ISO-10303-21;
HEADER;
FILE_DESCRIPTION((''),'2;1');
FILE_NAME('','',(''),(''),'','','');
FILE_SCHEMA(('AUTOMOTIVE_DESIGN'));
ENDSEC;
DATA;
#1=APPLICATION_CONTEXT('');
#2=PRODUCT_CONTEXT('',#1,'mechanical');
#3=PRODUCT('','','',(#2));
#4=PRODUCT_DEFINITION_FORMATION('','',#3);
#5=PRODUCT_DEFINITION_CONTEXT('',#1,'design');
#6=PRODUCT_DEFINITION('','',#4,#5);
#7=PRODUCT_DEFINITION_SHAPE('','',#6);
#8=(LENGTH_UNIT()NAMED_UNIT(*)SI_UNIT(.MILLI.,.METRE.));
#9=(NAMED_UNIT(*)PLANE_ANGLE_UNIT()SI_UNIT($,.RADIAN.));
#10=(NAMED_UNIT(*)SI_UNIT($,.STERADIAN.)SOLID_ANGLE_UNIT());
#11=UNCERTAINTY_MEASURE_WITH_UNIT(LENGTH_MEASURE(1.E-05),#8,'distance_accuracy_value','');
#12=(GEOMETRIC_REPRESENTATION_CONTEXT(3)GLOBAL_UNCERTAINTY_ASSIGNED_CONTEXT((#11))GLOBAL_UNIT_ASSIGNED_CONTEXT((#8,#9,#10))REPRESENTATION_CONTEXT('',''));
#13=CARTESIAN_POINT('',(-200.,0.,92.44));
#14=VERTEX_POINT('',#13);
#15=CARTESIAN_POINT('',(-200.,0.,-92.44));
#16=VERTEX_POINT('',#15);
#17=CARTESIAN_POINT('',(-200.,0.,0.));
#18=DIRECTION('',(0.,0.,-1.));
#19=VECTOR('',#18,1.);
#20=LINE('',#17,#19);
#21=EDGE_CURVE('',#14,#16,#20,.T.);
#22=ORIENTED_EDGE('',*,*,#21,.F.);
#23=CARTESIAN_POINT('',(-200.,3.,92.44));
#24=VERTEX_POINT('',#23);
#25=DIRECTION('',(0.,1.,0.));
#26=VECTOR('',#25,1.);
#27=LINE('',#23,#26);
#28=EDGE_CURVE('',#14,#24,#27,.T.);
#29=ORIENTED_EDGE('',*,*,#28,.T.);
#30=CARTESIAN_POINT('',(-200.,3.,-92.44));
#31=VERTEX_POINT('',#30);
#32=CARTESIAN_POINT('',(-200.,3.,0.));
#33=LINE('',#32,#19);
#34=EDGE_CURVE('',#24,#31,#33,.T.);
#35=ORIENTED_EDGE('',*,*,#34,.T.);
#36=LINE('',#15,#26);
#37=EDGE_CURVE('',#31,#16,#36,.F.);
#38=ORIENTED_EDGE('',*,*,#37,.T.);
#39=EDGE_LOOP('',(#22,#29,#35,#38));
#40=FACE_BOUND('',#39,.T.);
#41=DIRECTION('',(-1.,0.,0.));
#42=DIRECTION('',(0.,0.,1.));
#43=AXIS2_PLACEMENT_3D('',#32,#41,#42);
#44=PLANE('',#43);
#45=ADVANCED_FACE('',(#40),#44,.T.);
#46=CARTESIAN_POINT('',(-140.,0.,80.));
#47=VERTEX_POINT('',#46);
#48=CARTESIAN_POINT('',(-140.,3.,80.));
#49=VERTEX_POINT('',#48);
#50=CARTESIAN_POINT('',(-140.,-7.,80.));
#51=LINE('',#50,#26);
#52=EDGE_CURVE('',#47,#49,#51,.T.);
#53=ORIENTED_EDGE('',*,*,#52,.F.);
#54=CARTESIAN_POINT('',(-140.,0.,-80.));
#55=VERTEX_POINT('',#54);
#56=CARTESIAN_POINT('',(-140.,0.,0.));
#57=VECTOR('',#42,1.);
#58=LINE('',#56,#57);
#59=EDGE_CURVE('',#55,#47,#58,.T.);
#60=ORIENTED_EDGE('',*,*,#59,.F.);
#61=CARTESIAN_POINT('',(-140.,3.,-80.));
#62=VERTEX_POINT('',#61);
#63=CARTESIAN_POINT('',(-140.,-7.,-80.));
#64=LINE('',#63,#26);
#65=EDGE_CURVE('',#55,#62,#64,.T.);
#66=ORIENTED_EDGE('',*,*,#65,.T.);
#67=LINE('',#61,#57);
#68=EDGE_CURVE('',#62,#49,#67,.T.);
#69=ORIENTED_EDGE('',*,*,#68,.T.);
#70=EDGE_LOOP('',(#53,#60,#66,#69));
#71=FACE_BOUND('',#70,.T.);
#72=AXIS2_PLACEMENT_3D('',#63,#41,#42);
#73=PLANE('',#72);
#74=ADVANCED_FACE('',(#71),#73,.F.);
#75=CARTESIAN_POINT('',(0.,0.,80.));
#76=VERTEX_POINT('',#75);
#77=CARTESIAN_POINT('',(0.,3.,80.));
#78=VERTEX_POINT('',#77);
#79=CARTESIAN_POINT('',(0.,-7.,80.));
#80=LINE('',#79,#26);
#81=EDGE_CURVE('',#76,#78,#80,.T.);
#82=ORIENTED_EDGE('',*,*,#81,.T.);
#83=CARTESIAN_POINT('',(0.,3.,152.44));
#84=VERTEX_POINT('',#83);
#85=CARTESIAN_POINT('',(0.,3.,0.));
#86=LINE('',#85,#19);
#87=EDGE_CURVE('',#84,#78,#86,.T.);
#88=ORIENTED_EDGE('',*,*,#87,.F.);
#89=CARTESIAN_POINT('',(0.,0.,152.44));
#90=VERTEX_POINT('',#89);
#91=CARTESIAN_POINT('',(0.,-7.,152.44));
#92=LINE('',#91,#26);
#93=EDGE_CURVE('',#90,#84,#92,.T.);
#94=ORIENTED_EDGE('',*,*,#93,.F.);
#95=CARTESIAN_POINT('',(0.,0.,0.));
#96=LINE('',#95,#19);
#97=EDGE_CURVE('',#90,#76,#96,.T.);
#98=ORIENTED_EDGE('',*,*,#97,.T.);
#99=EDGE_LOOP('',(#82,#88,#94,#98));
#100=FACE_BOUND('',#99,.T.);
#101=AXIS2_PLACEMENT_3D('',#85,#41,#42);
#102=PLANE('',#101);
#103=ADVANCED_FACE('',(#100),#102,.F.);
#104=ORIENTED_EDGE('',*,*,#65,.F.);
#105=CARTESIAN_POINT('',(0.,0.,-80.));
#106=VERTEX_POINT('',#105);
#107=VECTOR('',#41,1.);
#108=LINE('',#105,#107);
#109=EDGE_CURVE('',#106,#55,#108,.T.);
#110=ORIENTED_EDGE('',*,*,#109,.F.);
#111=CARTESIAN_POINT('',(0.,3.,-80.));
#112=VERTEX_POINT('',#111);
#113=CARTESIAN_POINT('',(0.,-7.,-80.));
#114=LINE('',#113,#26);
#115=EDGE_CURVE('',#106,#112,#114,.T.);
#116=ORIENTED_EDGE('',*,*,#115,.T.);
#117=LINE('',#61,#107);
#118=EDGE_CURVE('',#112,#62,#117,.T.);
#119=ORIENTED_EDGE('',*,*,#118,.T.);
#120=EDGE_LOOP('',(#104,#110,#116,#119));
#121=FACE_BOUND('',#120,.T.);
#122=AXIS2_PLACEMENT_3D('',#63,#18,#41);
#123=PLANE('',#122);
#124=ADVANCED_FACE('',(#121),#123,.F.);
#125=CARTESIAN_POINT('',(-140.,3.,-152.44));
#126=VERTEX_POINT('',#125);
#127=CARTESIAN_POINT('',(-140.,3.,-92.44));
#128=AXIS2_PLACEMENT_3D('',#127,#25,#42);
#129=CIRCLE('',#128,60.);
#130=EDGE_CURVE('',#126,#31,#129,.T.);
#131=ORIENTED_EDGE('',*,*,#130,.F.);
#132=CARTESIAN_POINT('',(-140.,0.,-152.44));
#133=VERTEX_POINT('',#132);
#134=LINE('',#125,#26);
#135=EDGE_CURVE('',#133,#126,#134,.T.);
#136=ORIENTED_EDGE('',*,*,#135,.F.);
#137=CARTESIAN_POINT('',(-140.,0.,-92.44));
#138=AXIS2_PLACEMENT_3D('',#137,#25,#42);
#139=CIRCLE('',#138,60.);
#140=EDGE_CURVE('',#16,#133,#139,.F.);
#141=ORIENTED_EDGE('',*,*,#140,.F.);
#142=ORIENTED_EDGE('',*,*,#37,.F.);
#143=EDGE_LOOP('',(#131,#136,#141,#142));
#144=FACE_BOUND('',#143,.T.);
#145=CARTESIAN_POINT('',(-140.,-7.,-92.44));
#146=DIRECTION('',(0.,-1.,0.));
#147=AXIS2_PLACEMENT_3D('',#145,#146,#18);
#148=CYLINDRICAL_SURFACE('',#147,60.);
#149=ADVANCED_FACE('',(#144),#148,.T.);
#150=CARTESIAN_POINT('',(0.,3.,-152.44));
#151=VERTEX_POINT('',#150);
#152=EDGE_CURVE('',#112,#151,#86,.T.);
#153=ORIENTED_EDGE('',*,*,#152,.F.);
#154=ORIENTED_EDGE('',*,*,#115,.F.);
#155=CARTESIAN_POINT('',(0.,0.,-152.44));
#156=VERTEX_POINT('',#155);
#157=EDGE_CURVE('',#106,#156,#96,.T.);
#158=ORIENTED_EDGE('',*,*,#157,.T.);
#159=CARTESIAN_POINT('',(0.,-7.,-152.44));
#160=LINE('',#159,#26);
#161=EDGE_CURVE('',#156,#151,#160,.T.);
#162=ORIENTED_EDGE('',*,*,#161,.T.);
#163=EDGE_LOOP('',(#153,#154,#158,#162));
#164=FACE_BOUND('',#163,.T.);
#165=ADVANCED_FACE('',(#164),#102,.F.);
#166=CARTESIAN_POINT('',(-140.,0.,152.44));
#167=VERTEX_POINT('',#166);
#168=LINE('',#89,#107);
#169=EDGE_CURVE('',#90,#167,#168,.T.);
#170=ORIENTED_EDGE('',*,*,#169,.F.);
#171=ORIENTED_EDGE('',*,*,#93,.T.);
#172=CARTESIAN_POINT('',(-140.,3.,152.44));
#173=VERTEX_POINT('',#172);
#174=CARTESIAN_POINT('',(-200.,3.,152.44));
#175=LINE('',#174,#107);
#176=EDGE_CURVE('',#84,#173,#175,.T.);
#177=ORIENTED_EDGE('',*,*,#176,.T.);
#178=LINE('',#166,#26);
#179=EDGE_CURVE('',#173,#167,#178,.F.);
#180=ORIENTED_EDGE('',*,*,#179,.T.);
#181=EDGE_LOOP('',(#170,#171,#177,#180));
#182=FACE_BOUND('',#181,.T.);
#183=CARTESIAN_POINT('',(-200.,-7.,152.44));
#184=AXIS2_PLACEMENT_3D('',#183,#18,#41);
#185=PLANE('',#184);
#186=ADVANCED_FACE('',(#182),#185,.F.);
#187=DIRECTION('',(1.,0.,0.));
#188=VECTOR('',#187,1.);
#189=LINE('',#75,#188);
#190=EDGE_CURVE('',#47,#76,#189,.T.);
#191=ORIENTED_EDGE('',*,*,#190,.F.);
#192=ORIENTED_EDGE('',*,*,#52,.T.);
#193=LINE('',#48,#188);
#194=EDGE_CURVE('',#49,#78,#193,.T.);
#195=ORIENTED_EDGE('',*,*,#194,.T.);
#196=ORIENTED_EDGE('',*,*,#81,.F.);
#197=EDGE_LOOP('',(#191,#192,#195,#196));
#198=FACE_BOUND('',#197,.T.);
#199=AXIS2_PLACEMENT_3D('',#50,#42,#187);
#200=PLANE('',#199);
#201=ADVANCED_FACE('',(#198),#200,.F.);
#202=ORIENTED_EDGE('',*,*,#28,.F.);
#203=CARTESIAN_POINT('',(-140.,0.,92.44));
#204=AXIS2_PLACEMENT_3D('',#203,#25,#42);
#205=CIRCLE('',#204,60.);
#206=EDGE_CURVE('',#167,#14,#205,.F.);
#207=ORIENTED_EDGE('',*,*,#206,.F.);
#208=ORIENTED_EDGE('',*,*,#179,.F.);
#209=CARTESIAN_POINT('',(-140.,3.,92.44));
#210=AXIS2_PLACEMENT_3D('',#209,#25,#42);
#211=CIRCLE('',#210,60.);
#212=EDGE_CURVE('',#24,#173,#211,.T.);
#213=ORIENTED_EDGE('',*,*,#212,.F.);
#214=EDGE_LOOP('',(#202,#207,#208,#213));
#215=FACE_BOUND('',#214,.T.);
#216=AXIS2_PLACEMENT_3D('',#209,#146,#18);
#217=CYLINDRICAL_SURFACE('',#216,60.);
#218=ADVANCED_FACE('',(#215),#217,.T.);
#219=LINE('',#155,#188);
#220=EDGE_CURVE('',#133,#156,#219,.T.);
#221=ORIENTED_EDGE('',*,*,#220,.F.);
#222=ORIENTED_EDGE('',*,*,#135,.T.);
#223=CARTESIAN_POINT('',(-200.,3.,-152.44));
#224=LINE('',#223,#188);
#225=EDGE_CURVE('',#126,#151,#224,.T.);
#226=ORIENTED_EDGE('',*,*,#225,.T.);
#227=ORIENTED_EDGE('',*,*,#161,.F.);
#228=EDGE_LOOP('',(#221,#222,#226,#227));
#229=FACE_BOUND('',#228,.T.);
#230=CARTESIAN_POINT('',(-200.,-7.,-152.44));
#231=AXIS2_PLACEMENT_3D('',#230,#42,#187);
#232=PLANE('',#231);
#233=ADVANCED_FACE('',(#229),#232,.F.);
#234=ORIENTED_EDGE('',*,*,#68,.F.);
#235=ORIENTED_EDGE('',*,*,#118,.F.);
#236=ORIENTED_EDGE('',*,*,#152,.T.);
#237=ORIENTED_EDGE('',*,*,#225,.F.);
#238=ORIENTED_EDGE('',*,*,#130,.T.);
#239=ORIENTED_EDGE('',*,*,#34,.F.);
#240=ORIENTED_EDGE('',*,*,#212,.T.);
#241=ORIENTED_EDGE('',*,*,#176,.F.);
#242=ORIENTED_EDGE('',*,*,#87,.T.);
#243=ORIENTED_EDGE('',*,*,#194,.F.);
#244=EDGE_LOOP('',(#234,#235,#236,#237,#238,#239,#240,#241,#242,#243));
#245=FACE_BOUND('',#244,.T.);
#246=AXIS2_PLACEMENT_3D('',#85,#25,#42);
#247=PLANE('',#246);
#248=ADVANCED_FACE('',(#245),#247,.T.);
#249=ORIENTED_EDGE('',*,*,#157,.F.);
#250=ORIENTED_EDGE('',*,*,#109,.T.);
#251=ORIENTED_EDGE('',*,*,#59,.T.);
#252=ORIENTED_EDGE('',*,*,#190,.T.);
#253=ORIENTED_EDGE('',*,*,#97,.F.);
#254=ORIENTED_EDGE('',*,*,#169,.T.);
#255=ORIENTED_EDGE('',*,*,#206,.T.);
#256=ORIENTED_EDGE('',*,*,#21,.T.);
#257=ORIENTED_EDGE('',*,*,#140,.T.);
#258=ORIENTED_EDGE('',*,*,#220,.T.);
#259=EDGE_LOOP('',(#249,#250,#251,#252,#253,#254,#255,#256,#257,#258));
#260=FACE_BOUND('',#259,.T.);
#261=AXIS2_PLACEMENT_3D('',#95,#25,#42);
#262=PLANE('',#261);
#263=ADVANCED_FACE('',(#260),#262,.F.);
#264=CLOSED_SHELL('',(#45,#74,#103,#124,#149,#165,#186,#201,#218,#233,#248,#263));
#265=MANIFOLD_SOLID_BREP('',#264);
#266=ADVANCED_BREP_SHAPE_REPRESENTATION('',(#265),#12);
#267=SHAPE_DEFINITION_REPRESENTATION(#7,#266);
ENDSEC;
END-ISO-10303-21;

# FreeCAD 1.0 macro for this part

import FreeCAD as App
import Part
import Sketcher
from FreeCAD import Vector


def edges_at(feature, points):
    """Names of the edges that pass closest to the given points."""
    edges = feature.Shape.Edges
    near = lambda p: min(range(len(edges)), key=lambda i: edges[i].distToShape(Part.Vertex(*p))[0])
    return sorted({f"Edge{near(p) + 1}" for p in points})


def add_polygon(sketch, points):
    """Adds a closed chain of lines whose ends are joined by coincident constraints."""
    first, n = sketch.GeometryCount, len(points)
    for a, b in zip(points, points[1:] + points[:1]):
        sketch.addGeometry(Part.LineSegment(App.Vector(*a, 0), App.Vector(*b, 0)), False)
    for i in range(n):
        sketch.addConstraint(Sketcher.Constraint("Coincident", first + i, 2, first + (i + 1) % n, 1))

doc = App.newDocument("Part")
body = doc.addObject("PartDesign::Body", "Body")

# Sketch on XZ plane
sketch1 = body.newObject("Sketcher::SketchObject", "Sketch")
sketch1.AttachmentSupport = (doc.getObject("XZ_Plane"), [""])
sketch1.MapMode = "FlatFace"
add_polygon(sketch1, [(0, -155), (-200, -155), (-200, 155), (0, 155)])  # lines 0-3
sketch1.addConstraint(Sketcher.Constraint("Horizontal", 0))
sketch1.addConstraint(Sketcher.Constraint("Vertical", 1))
sketch1.addConstraint(Sketcher.Constraint("Horizontal", 2))
sketch1.addConstraint(Sketcher.Constraint("Vertical", 3))
sketch1.addConstraint(Sketcher.Constraint("Symmetric", 2, 2, 3, 2, -1, 1))
sketch1.addConstraint(Sketcher.Constraint("DistanceX", 0, 2, 0, 1, 200.0))
sketch1.addConstraint(Sketcher.Constraint("DistanceY", 1, 1, 1, 2, 310.0))
pad1 = body.newObject("PartDesign::Pad", "Pad")
pad1.Profile = sketch1
pad1.Length = 3
pad1.Reversed = True

# Sketch on XZ plane
sketch2 = body.newObject("Sketcher::SketchObject", "Sketch001")
sketch2.AttachmentSupport = (doc.getObject("XZ_Plane"), [""])
sketch2.MapMode = "FlatFace"
sketch2.AttachmentOffset = App.Placement(Vector(0, 0, -3), App.Rotation())
add_polygon(sketch2, [(-200, -155), (-200, -152.44), (0, -152.44), (0, -155)])  # lines 0-3
add_polygon(sketch2, [(-200, 152.44), (-200, 155), (0, 155), (0, 152.44)])  # lines 4-7
sketch2.addConstraint(Sketcher.Constraint("Vertical", 0))
sketch2.addConstraint(Sketcher.Constraint("Horizontal", 1))
sketch2.addConstraint(Sketcher.Constraint("Vertical", 2))
sketch2.addConstraint(Sketcher.Constraint("Horizontal", 3))
sketch2.addConstraint(Sketcher.Constraint("Vertical", 4))
sketch2.addConstraint(Sketcher.Constraint("Horizontal", 5))
sketch2.addConstraint(Sketcher.Constraint("Vertical", 6))
sketch2.addConstraint(Sketcher.Constraint("Horizontal", 7))
sketch2.addConstraint(Sketcher.Constraint("Symmetric", 2, 2, 5, 2, -1, 1))
sketch2.addConstraint(Sketcher.Constraint("Symmetric", 1, 2, 6, 2, -1))
sketch2.addConstraint(Sketcher.Constraint("Vertical", 3, 2, 4, 2))
sketch2.addConstraint(Sketcher.Constraint("DistanceX", 1, 1, 1, 2, 200.0))
sketch2.addConstraint(Sketcher.Constraint("DistanceY", 2, 2, -1, 1, 155.0))
sketch2.addConstraint(Sketcher.Constraint("DistanceY", 0, 1, 0, 2, 2.56))
pocket1 = body.newObject("PartDesign::Pocket", "Pocket")
pocket1.Profile = sketch2
pocket1.Length = 10
pocket1.Reversed = True

# Sketch on XZ plane
sketch3 = body.newObject("Sketcher::SketchObject", "Sketch002")
sketch3.AttachmentSupport = (doc.getObject("XZ_Plane"), [""])
sketch3.MapMode = "FlatFace"
sketch3.AttachmentOffset = App.Placement(Vector(0, 0, -3), App.Rotation())
add_polygon(sketch3, [(-140, -80), (-140, 80), (0, 80), (0, -80)])  # lines 0-3
sketch3.addConstraint(Sketcher.Constraint("Vertical", 0))
sketch3.addConstraint(Sketcher.Constraint("Horizontal", 1))
sketch3.addConstraint(Sketcher.Constraint("Vertical", 2))
sketch3.addConstraint(Sketcher.Constraint("Horizontal", 3))
sketch3.addConstraint(Sketcher.Constraint("Symmetric", 1, 2, 2, 2, -1, 1))
sketch3.addConstraint(Sketcher.Constraint("DistanceX", 1, 1, 1, 2, 140.0))
sketch3.addConstraint(Sketcher.Constraint("DistanceY", 0, 1, 0, 2, 160.0))
pocket2 = body.newObject("PartDesign::Pocket", "Pocket001")
pocket2.Profile = sketch3
pocket2.Length = 10
pocket2.Reversed = True
doc.recompute()

fillet = body.newObject("PartDesign::Fillet", "Fillet")
fillet.Base = (pocket2, edges_at(pocket2, [(-200, 1.5, -152.44), (-200, 1.5, 152.44)]))
fillet.Radius = 60

doc.recompute()
